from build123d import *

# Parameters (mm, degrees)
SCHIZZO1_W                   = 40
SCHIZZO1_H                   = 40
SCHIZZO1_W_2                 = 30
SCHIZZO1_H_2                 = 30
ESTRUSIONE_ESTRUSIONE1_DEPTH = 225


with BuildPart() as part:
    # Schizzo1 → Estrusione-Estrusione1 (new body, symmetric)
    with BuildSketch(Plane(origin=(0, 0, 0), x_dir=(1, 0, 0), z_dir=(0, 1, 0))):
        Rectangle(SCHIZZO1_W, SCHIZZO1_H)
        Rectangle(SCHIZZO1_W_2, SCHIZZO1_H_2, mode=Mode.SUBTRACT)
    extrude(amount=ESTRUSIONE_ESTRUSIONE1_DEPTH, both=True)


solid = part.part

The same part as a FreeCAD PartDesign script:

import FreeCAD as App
import Part
import Sketcher
Q = App.Units.Quantity


def add_polygon(sketch, points):
    """Adds a closed chain of lines whose ends are joined by coincident constraints."""
    first, n = sketch.GeometryCount, len(points)
    for a, b in zip(points, points[1:] + points[:1]):
        sketch.addGeometry(Part.LineSegment(App.Vector(*a, 0), App.Vector(*b, 0)), False)
    for i in range(n):
        sketch.addConstraint(Sketcher.Constraint("Coincident", first + i, 2, first + (i + 1) % n, 1))

doc = App.newDocument("Part")
body = doc.addObject("PartDesign::Body", "Body")

# Sketch on XZ plane
sketch1 = body.newObject("Sketcher::SketchObject", "Sketch")
sketch1.AttachmentSupport = (doc.getObject("XZ_Plane"), [""])
sketch1.MapMode = "FlatFace"
add_polygon(sketch1, [(-20, -20), (-20, 20), (20, 20), (20, -20)])  # lines 0-3
add_polygon(sketch1, [(15, 15), (-15, 15), (-15, -15), (15, -15)])  # lines 4-7
sketch1.addConstraint([
    Sketcher.Constraint("Vertical", 0),
    Sketcher.Constraint("Horizontal", 1),
    Sketcher.Constraint("Vertical", 2),
    Sketcher.Constraint("Horizontal", 3),
    Sketcher.Constraint("Horizontal", 4),
    Sketcher.Constraint("Vertical", 5),
    Sketcher.Constraint("Horizontal", 6),
    Sketcher.Constraint("Vertical", 7),
    Sketcher.Constraint("Symmetric", 0, 2, 2, 2, -1, 1),
    Sketcher.Constraint("Symmetric", 4, 2, 6, 2, -1, 1),
    Sketcher.Constraint("Equal", 3, 0),
    Sketcher.Constraint("Equal", 6, 5),
    Sketcher.Constraint("DistanceX", 1, 1, 1, 2, Q("40 mm")),
    Sketcher.Constraint("DistanceX", 4, 2, 4, 1, Q("30 mm")),
])
pad1 = body.newObject("PartDesign::Pad", "Pad")
pad1.Profile = sketch1
pad1.Length = 450
pad1.Midplane = True

doc.recompute()
